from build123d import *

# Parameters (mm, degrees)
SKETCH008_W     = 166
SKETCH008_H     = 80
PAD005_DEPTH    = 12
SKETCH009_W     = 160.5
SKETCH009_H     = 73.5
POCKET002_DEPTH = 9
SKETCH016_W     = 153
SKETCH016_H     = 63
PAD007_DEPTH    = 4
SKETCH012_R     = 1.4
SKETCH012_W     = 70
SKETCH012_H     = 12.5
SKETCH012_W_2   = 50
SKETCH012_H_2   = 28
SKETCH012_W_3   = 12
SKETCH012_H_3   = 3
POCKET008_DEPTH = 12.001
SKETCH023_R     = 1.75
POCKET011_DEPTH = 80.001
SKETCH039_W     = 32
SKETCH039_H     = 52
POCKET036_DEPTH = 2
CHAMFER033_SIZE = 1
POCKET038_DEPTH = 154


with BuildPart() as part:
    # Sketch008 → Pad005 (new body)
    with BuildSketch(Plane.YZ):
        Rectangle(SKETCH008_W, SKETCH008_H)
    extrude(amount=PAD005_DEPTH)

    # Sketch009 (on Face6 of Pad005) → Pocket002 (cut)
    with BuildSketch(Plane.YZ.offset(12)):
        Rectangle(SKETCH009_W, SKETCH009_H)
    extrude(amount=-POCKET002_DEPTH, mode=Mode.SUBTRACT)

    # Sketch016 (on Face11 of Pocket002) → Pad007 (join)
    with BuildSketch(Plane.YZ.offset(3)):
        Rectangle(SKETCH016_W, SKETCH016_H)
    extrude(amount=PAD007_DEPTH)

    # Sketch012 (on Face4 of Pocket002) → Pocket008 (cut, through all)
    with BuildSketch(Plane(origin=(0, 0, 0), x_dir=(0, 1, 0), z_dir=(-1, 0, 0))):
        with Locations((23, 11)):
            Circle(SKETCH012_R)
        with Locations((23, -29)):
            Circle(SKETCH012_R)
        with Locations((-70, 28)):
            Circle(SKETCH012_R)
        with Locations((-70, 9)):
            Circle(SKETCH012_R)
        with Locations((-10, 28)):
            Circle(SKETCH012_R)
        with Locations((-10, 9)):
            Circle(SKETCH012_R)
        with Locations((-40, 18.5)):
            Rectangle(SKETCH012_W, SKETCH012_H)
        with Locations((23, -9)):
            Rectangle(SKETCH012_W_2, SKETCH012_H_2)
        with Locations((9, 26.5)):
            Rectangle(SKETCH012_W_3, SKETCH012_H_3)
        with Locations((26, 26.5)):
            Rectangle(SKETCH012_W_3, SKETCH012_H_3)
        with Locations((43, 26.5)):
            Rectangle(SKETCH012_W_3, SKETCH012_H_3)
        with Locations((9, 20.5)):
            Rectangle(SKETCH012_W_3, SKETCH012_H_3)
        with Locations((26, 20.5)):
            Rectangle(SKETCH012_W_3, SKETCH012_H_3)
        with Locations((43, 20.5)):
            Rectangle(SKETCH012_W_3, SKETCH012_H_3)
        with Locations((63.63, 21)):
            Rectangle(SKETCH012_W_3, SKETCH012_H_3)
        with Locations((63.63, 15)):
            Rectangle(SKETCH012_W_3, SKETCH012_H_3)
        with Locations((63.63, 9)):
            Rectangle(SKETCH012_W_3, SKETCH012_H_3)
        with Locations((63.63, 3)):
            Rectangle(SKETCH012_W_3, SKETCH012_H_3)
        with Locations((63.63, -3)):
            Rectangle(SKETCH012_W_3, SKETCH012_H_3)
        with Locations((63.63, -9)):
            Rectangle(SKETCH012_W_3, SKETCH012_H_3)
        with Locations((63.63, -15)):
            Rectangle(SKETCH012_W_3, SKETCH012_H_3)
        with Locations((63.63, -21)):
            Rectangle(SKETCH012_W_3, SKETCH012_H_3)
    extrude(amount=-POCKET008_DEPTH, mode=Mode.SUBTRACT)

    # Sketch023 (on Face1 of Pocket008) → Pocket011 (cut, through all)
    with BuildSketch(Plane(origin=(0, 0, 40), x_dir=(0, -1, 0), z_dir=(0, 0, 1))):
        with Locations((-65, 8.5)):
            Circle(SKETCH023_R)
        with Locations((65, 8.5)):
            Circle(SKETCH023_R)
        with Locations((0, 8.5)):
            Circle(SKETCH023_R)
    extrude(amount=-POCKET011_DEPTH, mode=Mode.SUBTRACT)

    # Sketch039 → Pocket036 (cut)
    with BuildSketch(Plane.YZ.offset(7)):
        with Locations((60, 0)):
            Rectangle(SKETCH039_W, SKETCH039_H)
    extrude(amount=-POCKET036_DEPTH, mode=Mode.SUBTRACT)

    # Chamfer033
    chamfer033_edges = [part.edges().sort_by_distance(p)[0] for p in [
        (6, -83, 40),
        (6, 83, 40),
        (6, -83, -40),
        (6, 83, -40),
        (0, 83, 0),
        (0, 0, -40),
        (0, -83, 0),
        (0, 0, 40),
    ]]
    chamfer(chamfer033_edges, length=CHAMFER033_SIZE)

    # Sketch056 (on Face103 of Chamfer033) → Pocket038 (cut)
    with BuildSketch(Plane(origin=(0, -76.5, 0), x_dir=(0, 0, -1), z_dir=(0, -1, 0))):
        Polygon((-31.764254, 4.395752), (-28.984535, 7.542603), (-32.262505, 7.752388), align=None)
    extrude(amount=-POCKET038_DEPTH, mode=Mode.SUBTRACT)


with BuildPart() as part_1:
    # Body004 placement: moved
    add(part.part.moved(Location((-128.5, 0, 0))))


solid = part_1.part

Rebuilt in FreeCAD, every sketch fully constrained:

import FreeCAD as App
import Part
import Sketcher

V = App.Vector


def edges_at(feature, points):
    """Names of the edges that pass closest to the given points."""
    edges = feature.Shape.Edges
    near = lambda p: min(range(len(edges)), key=lambda i: edges[i].distToShape(Part.Vertex(*p))[0])
    return sorted({f"Edge{near(p) + 1}" for p in points})


def add_polygon(sketch, points):
    """Adds a closed chain of lines whose ends are joined by coincident constraints."""
    first, n = sketch.GeometryCount, len(points)
    for a, b in zip(points, points[1:] + points[:1]):
        sketch.addGeometry(Part.LineSegment(App.Vector(*a, 0), App.Vector(*b, 0)), False)
    for i in range(n):
        sketch.addConstraint(Sketcher.Constraint("Coincident", first + i, 2, first + (i + 1) % n, 1))

doc = App.newDocument("Part")
body = doc.addObject("PartDesign::Body", "Body")

# Sketch on YZ plane
sketch1 = body.newObject("Sketcher::SketchObject", "Sketch")
sketch1.AttachmentSupport = (doc.getObject("YZ_Plane"), [""])
sketch1.MapMode = "FlatFace"
add_polygon(sketch1, [(-83, 40), (-83, -40), (83, -40), (83, 40)])  # lines 0-3
sketch1.addConstraint([
    Sketcher.Constraint("Vertical", 0),
    Sketcher.Constraint("Horizontal", 1),
    Sketcher.Constraint("Vertical", 2),
    Sketcher.Constraint("Horizontal", 3),
    Sketcher.Constraint("Symmetric", 0, 2, 2, 2, -1, 1),
    Sketcher.Constraint("DistanceX", 1, 1, 1, 2, 166.0),
    Sketcher.Constraint("DistanceY", 0, 2, 0, 1, 80.0),
])
pad1 = body.newObject("PartDesign::Pad", "Pad")
pad1.Profile = sketch1
pad1.Length = 12

# Sketch on YZ plane
sketch2 = body.newObject("Sketcher::SketchObject", "Sketch001")
sketch2.AttachmentSupport = (doc.getObject("YZ_Plane"), [""])
sketch2.MapMode = "FlatFace"
sketch2.AttachmentOffset = App.Placement(V(0, 0, 12), App.Rotation())
add_polygon(sketch2, [(-80, 37), (-80, -37), (80, -37), (80, 37)])  # lines 0-3
sketch2.addConstraint([
    Sketcher.Constraint("Vertical", 0),
    Sketcher.Constraint("Horizontal", 1),
    Sketcher.Constraint("Vertical", 2),
    Sketcher.Constraint("Horizontal", 3),
    Sketcher.Constraint("Symmetric", 0, 2, 2, 2, -1, 1),
    Sketcher.Constraint("DistanceX", 1, 1, 1, 2, 160.5),
    Sketcher.Constraint("DistanceY", 0, 2, 0, 1, 73.5),
])
pocket1 = body.newObject("PartDesign::Pocket", "Pocket")
pocket1.Profile = sketch2
pocket1.Length = 9

# Sketch on YZ plane
sketch3 = body.newObject("Sketcher::SketchObject", "Sketch002")
sketch3.AttachmentSupport = (doc.getObject("YZ_Plane"), [""])
sketch3.MapMode = "FlatFace"
sketch3.AttachmentOffset = App.Placement(V(0, 0, 3), App.Rotation())
add_polygon(sketch3, [(-76, 32), (-76, -32), (76, -32), (76, 32)])  # lines 0-3
sketch3.addConstraint([
    Sketcher.Constraint("Vertical", 0),
    Sketcher.Constraint("Horizontal", 1),
    Sketcher.Constraint("Vertical", 2),
    Sketcher.Constraint("Horizontal", 3),
    Sketcher.Constraint("Symmetric", 0, 2, 2, 2, -1, 1),
    Sketcher.Constraint("DistanceX", 1, 1, 1, 2, 153.0),
    Sketcher.Constraint("DistanceY", 0, 2, 0, 1, 63.0),
])
pad2 = body.newObject("PartDesign::Pad", "Pad001")
pad2.Profile = sketch3
pad2.Length = 4

# Sketch on YZ plane
sketch4 = body.newObject("Sketcher::SketchObject", "Sketch003")
sketch4.AttachmentSupport = (doc.getObject("YZ_Plane"), [""])
sketch4.MapMode = "FlatFace"
sketch4.addGeometry(Part.Circle(V(23, -11, 0), V(0, 0, 1), 1.4), False)  # 0
sketch4.addGeometry(Part.Circle(V(23, 29, 0), V(0, 0, 1), 1.4), False)  # 1
sketch4.addGeometry(Part.Circle(V(-70, -28, 0), V(0, 0, 1), 1.4), False)  # 2
sketch4.addGeometry(Part.Circle(V(-70, -9, 0), V(0, 0, 1), 1.4), False)  # 3
sketch4.addGeometry(Part.Circle(V(-10, -28, 0), V(0, 0, 1), 1.4), False)  # 4
sketch4.addGeometry(Part.Circle(V(-10, -9, 0), V(0, 0, 1), 1.4), False)  # 5
add_polygon(sketch4, [(-75, -24.8), (-75, -12.2), (-5, -12.2), (-5, -24.8)])  # lines 6-9
add_polygon(sketch4, [(-2, -5), (-2, 23), (48, 23), (48, -5)])  # lines 10-13
add_polygon(sketch4, [(3, -28), (3, -25), (15, -25), (15, -28)])  # lines 14-17
add_polygon(sketch4, [(20, -28), (20, -25), (32, -25), (32, -28)])  # lines 18-21
add_polygon(sketch4, [(37, -28), (37, -25), (49, -25), (49, -28)])  # lines 22-25
add_polygon(sketch4, [(3, -22), (3, -19), (15, -19), (15, -22)])  # lines 26-29
add_polygon(sketch4, [(20, -22), (20, -19), (32, -19), (32, -22)])  # lines 30-33
add_polygon(sketch4, [(37, -22), (37, -19), (49, -19), (49, -22)])  # lines 34-37
add_polygon(sketch4, [(57.6, -22.5), (57.6, -19.5), (69.6, -19.5), (69.6, -22.5)])  # lines 38-41
add_polygon(sketch4, [(57.6, -16.5), (57.6, -13.5), (69.6, -13.5), (69.6, -16.5)])  # lines 42-45
add_polygon(sketch4, [(57.6, -10.5), (57.6, -7.5), (69.6, -7.5), (69.6, -10.5)])  # lines 46-49
add_polygon(sketch4, [(57.6, -4.5), (57.6, -1.5), (69.6, -1.5), (69.6, -4.5)])  # lines 50-53
add_polygon(sketch4, [(57.6, 1.5), (57.6, 4.5), (69.6, 4.5), (69.6, 1.5)])  # lines 54-57
add_polygon(sketch4, [(57.6, 7.5), (57.6, 10.5), (69.6, 10.5), (69.6, 7.5)])  # lines 58-61
add_polygon(sketch4, [(57.6, 13.5), (57.6, 16.5), (69.6, 16.5), (69.6, 13.5)])  # lines 62-65
add_polygon(sketch4, [(57.6, 19.5), (57.6, 22.5), (69.6, 22.5), (69.6, 19.5)])  # lines 66-69
sketch4.addConstraint([
    Sketcher.Constraint("Vertical", 6),
    Sketcher.Constraint("Horizontal", 7),
    Sketcher.Constraint("Vertical", 8),
    Sketcher.Constraint("Horizontal", 9),
    Sketcher.Constraint("Vertical", 10),
    Sketcher.Constraint("Horizontal", 11),
    Sketcher.Constraint("Vertical", 12),
    Sketcher.Constraint("Horizontal", 13),
    Sketcher.Constraint("Vertical", 14),
    Sketcher.Constraint("Horizontal", 15),
    Sketcher.Constraint("Vertical", 16),
    Sketcher.Constraint("Horizontal", 17),
    Sketcher.Constraint("Vertical", 18),
    Sketcher.Constraint("Horizontal", 19),
    Sketcher.Constraint("Vertical", 20),
    Sketcher.Constraint("Horizontal", 21),
    Sketcher.Constraint("Vertical", 22),
    Sketcher.Constraint("Horizontal", 23),
    Sketcher.Constraint("Vertical", 24),
    Sketcher.Constraint("Horizontal", 25),
    Sketcher.Constraint("Vertical", 26),
    Sketcher.Constraint("Horizontal", 27),
    Sketcher.Constraint("Vertical", 28),
    Sketcher.Constraint("Horizontal", 29),
    Sketcher.Constraint("Vertical", 30),
    Sketcher.Constraint("Horizontal", 31),
    Sketcher.Constraint("Vertical", 32),
    Sketcher.Constraint("Horizontal", 33),
    Sketcher.Constraint("Vertical", 34),
    Sketcher.Constraint("Horizontal", 35),
    Sketcher.Constraint("Vertical", 36),
    Sketcher.Constraint("Horizontal", 37),
    Sketcher.Constraint("Vertical", 38),
    Sketcher.Constraint("Horizontal", 39),
    Sketcher.Constraint("Vertical", 40),
    Sketcher.Constraint("Horizontal", 41),
    Sketcher.Constraint("Vertical", 42),
    Sketcher.Constraint("Horizontal", 43),
    Sketcher.Constraint("Vertical", 44),
    Sketcher.Constraint("Horizontal", 45),
    Sketcher.Constraint("Vertical", 46),
    Sketcher.Constraint("Horizontal", 47),
    Sketcher.Constraint("Vertical", 48),
    Sketcher.Constraint("Horizontal", 49),
    Sketcher.Constraint("Vertical", 50),
    Sketcher.Constraint("Horizontal", 51),
    Sketcher.Constraint("Vertical", 52),
    Sketcher.Constraint("Horizontal", 53),
    Sketcher.Constraint("Vertical", 54),
    Sketcher.Constraint("Horizontal", 55),
    Sketcher.Constraint("Vertical", 56),
    Sketcher.Constraint("Horizontal", 57),
    Sketcher.Constraint("Vertical", 58),
    Sketcher.Constraint("Horizontal", 59),
    Sketcher.Constraint("Vertical", 60),
    Sketcher.Constraint("Horizontal", 61),
    Sketcher.Constraint("Vertical", 62),
    Sketcher.Constraint("Horizontal", 63),
    Sketcher.Constraint("Vertical", 64),
    Sketcher.Constraint("Horizontal", 65),
    Sketcher.Constraint("Vertical", 66),
    Sketcher.Constraint("Horizontal", 67),
    Sketcher.Constraint("Vertical", 68),
    Sketcher.Constraint("Horizontal", 69),
    Sketcher.Constraint("Equal", 0, 1),
    Sketcher.Constraint("Equal", 1, 2),
    Sketcher.Constraint("Equal", 2, 3),
    Sketcher.Constraint("Equal", 3, 4),
    Sketcher.Constraint("Equal", 4, 5),
    Sketcher.Constraint("Symmetric", 53, 2, 54, 2, -1),
    Sketcher.Constraint("Symmetric", 51, 2, 56, 2, -1),
    Sketcher.Constraint("Symmetric", 49, 2, 58, 2, -1),
    Sketcher.Constraint("Symmetric", 47, 2, 60, 2, -1),
    Sketcher.Constraint("Symmetric", 45, 2, 62, 2, -1),
    Sketcher.Constraint("Symmetric", 43, 2, 64, 2, -1),
    Sketcher.Constraint("Symmetric", 41, 2, 66, 2, -1),
    Sketcher.Constraint("Symmetric", 39, 2, 68, 2, -1),
    Sketcher.Constraint("Horizontal", 2, 3, 4, 3),
    Sketcher.Constraint("Horizontal", 3, 3, 5, 3),
    Sketcher.Constraint("Horizontal", 4, 3, 16, 2),
    Sketcher.Constraint("Horizontal", 15, 2, 18, 2),
    Sketcher.Constraint("Horizontal", 17, 2, 20, 2),
    Sketcher.Constraint("Horizontal", 19, 2, 22, 2),
    Sketcher.Constraint("Horizontal", 21, 2, 24, 2),
    Sketcher.Constraint("Horizontal", 27, 2, 30, 2),
    Sketcher.Constraint("Horizontal", 29, 2, 32, 2),
    Sketcher.Constraint("Horizontal", 31, 2, 34, 2),
    Sketcher.Constraint("Horizontal", 33, 2, 36, 2),
    Sketcher.Constraint("Vertical", 0, 3, 1, 3),
    Sketcher.Constraint("Vertical", 2, 3, 3, 3),
    Sketcher.Constraint("Vertical", 4, 3, 5, 3),
    Sketcher.Constraint("Vertical", 17, 2, 26, 2),
    Sketcher.Constraint("Vertical", 16, 2, 27, 2),
    Sketcher.Constraint("Vertical", 21, 2, 30, 2),
    Sketcher.Constraint("Vertical", 20, 2, 31, 2),
    Sketcher.Constraint("Vertical", 25, 2, 34, 2),
    Sketcher.Constraint("Vertical", 24, 2, 35, 2),
    Sketcher.Constraint("Vertical", 41, 2, 42, 2),
    Sketcher.Constraint("Vertical", 40, 2, 43, 2),
    Sketcher.Constraint("Vertical", 45, 2, 46, 2),
    Sketcher.Constraint("Vertical", 44, 2, 47, 2),
    Sketcher.Constraint("Vertical", 49, 2, 50, 2),
    Sketcher.Constraint("Vertical", 48, 2, 51, 2),
    Sketcher.Constraint("Equal", 17, 19),
    Sketcher.Constraint("Equal", 21, 23),
    Sketcher.Constraint("Equal", 37, 39),
    Sketcher.Constraint("Equal", 24, 26),
    Sketcher.Constraint("Equal", 36, 38),
    Sketcher.Constraint("Equal", 40, 42),
    Sketcher.Constraint("Equal", 44, 46),
    Sketcher.Constraint("Equal", 48, 50),
    Sketcher.Constraint("Diameter", 0, 2.8),
    Sketcher.Constraint("DistanceX", 7, 1, 7, 2, 70.0),
    Sketcher.Constraint("DistanceX", 11, 1, 11, 2, 50.0),
    Sketcher.Constraint("DistanceX", 15, 1, 15, 2, 12.0),
    Sketcher.Constraint("DistanceY", 10, 1, 10, 2, 28.0),
    Sketcher.Constraint("DistanceY", 14, 1, 14, 2, 3.0),
    Sketcher.Constraint("DistanceY", 6, 1, 6, 2, 12.5),
    Sketcher.Constraint("DistanceX", -1, 1, 0, 3, 23.0),
    Sketcher.Constraint("DistanceY", 0, 3, -1, 1, 11.0),
    Sketcher.Constraint("DistanceY", -1, 1, 1, 3, 29.0),
    Sketcher.Constraint("DistanceX", 2, 3, -1, 1, 70.0),
    Sketcher.Constraint("DistanceY", 2, 3, -1, 1, 28.0),
    Sketcher.Constraint("DistanceY", 3, 3, -1, 1, 9.0),
    Sketcher.Constraint("DistanceX", 4, 3, -1, 1, 10.0),
    Sketcher.Constraint("DistanceX", 6, 2, -1, 1, 75.0),
    Sketcher.Constraint("DistanceX", 10, 2, -1, 1, 2.0),
    Sketcher.Constraint("DistanceY", -1, 1, 10, 2, 23.0),
    Sketcher.Constraint("DistanceX", -1, 1, 14, 2, 3.0),
    Sketcher.Constraint("DistanceX", -1, 1, 18, 2, 20.0),
    Sketcher.Constraint("DistanceX", -1, 1, 22, 2, 37.0),
    Sketcher.Constraint("DistanceY", 26, 2, -1, 1, 19.0),
    Sketcher.Constraint("DistanceY", 38, 2, -1, 1, 19.5),
    Sketcher.Constraint("DistanceY", 42, 2, -1, 1, 13.5),
    Sketcher.Constraint("DistanceY", 46, 2, -1, 1, 7.5),
    Sketcher.Constraint("DistanceY", 50, 2, -1, 1, 1.5),
    Sketcher.Constraint("DistanceY", 6, 2, -1, 1, 12.25),
    Sketcher.Constraint("DistanceX", -1, 1, 38, 2, 57.63),
])
pocket2 = body.newObject("PartDesign::Pocket", "Pocket001")
pocket2.Profile = sketch4
pocket2.Type = "ThroughAll"
pocket2.Reversed = True

# Sketch on XY plane
sketch5 = body.newObject("Sketcher::SketchObject", "Sketch004")
sketch5.AttachmentSupport = (doc.getObject("XY_Plane"), [""])
sketch5.MapMode = "FlatFace"
sketch5.AttachmentOffset = App.Placement(V(0, 0, 40), App.Rotation())
sketch5.addGeometry([
    Part.Circle(V(8.5, 65, 0), V(0, 0, 1), 1.8),
    Part.Circle(V(8.5, -65, 0), V(0, 0, 1), 1.8),
    Part.Circle(V(8.5, 0, 0), V(0, 0, 1), 1.8),
], False)
sketch5.addConstraint([
    Sketcher.Constraint("Equal", 0, 1),
    Sketcher.Constraint("Equal", 1, 2),
    Sketcher.Constraint("Symmetric", 0, 3, 1, 3, -1),
    Sketcher.Constraint("PointOnObject", 2, 3, -1),
    Sketcher.Constraint("Vertical", 1, 3, 2, 3),
    Sketcher.Constraint("Diameter", 0, 3.5),
    Sketcher.Constraint("DistanceY", -1, 1, 0, 3, 65.0),
    Sketcher.Constraint("DistanceX", -1, 1, 0, 3, 8.5),
])
pocket3 = body.newObject("PartDesign::Pocket", "Pocket002")
pocket3.Profile = sketch5
pocket3.Type = "ThroughAll"

# Sketch on YZ plane
sketch6 = body.newObject("Sketcher::SketchObject", "Sketch005")
sketch6.AttachmentSupport = (doc.getObject("YZ_Plane"), [""])
sketch6.MapMode = "FlatFace"
sketch6.AttachmentOffset = App.Placement(V(0, 0, 7), App.Rotation())
add_polygon(sketch6, [(44, 26), (44, -26), (76, -26), (76, 26)])  # lines 0-3
sketch6.addConstraint([
    Sketcher.Constraint("Vertical", 0),
    Sketcher.Constraint("Horizontal", 1),
    Sketcher.Constraint("Vertical", 2),
    Sketcher.Constraint("Horizontal", 3),
    Sketcher.Constraint("DistanceX", 1, 1, 1, 2, 32.0),
    Sketcher.Constraint("DistanceY", 0, 2, 0, 1, 52.0),
    Sketcher.Constraint("DistanceX", -1, 1, 0, 2, 44.0),
    Sketcher.Constraint("DistanceY", 0, 2, -1, 1, 26.0),
])
pocket4 = body.newObject("PartDesign::Pocket", "Pocket003")
pocket4.Profile = sketch6
pocket4.Length = 2
doc.recompute()

chamfer = body.newObject("PartDesign::Chamfer", "Chamfer")
chamfer.Base = (pocket4, edges_at(pocket4, [
    (6, -83, 40),
    (6, 83, 40),
    (6, -83, -40),
    (6, 83, -40),
    (0, 83, 0),
    (0, 0, -40),
    (0, -83, 0),
    (0, 0, 40),
]))
chamfer.Size = 1

# Sketch on XZ plane
sketch7 = body.newObject("Sketcher::SketchObject", "Sketch006")
sketch7.AttachmentSupport = (doc.getObject("XZ_Plane"), [""])
sketch7.MapMode = "FlatFace"
sketch7.AttachmentOffset = App.Placement(V(0, 0, 76.5), App.Rotation())
add_polygon(sketch7, [(4.4, 31.8), (7.5, 29), (7.8, 32.3)])  # lines 0-2
sketch7.addConstraint([
    Sketcher.Constraint("Distance", 0, 4.198751),
    Sketcher.Constraint("DistanceY", 0, 2, 1, 2, 3.27797),
    Sketcher.Constraint("DistanceY", 2, 2, 1, 2, 0.498251),
    Sketcher.Constraint("Distance", 1, 3.284676),
    Sketcher.Constraint("DistanceX", -1, 1, 0, 2, 7.542603),
    Sketcher.Constraint("DistanceY", -1, 1, 0, 2, 28.984535),
])
pocket5 = body.newObject("PartDesign::Pocket", "Pocket004")
pocket5.Profile = sketch7
pocket5.Length = 154
body2 = doc.addObject("PartDesign::Body", "Body001")
doc.recompute()

body.Placement = App.Placement(V(-128.5, 0, 0), App.Rotation(V(0, 0, 1), 0))
boolean = body2.newObject("PartDesign::Boolean", "Boolean")
boolean.Type = "Fuse"
boolean.addObjects([body])

doc.recompute()
